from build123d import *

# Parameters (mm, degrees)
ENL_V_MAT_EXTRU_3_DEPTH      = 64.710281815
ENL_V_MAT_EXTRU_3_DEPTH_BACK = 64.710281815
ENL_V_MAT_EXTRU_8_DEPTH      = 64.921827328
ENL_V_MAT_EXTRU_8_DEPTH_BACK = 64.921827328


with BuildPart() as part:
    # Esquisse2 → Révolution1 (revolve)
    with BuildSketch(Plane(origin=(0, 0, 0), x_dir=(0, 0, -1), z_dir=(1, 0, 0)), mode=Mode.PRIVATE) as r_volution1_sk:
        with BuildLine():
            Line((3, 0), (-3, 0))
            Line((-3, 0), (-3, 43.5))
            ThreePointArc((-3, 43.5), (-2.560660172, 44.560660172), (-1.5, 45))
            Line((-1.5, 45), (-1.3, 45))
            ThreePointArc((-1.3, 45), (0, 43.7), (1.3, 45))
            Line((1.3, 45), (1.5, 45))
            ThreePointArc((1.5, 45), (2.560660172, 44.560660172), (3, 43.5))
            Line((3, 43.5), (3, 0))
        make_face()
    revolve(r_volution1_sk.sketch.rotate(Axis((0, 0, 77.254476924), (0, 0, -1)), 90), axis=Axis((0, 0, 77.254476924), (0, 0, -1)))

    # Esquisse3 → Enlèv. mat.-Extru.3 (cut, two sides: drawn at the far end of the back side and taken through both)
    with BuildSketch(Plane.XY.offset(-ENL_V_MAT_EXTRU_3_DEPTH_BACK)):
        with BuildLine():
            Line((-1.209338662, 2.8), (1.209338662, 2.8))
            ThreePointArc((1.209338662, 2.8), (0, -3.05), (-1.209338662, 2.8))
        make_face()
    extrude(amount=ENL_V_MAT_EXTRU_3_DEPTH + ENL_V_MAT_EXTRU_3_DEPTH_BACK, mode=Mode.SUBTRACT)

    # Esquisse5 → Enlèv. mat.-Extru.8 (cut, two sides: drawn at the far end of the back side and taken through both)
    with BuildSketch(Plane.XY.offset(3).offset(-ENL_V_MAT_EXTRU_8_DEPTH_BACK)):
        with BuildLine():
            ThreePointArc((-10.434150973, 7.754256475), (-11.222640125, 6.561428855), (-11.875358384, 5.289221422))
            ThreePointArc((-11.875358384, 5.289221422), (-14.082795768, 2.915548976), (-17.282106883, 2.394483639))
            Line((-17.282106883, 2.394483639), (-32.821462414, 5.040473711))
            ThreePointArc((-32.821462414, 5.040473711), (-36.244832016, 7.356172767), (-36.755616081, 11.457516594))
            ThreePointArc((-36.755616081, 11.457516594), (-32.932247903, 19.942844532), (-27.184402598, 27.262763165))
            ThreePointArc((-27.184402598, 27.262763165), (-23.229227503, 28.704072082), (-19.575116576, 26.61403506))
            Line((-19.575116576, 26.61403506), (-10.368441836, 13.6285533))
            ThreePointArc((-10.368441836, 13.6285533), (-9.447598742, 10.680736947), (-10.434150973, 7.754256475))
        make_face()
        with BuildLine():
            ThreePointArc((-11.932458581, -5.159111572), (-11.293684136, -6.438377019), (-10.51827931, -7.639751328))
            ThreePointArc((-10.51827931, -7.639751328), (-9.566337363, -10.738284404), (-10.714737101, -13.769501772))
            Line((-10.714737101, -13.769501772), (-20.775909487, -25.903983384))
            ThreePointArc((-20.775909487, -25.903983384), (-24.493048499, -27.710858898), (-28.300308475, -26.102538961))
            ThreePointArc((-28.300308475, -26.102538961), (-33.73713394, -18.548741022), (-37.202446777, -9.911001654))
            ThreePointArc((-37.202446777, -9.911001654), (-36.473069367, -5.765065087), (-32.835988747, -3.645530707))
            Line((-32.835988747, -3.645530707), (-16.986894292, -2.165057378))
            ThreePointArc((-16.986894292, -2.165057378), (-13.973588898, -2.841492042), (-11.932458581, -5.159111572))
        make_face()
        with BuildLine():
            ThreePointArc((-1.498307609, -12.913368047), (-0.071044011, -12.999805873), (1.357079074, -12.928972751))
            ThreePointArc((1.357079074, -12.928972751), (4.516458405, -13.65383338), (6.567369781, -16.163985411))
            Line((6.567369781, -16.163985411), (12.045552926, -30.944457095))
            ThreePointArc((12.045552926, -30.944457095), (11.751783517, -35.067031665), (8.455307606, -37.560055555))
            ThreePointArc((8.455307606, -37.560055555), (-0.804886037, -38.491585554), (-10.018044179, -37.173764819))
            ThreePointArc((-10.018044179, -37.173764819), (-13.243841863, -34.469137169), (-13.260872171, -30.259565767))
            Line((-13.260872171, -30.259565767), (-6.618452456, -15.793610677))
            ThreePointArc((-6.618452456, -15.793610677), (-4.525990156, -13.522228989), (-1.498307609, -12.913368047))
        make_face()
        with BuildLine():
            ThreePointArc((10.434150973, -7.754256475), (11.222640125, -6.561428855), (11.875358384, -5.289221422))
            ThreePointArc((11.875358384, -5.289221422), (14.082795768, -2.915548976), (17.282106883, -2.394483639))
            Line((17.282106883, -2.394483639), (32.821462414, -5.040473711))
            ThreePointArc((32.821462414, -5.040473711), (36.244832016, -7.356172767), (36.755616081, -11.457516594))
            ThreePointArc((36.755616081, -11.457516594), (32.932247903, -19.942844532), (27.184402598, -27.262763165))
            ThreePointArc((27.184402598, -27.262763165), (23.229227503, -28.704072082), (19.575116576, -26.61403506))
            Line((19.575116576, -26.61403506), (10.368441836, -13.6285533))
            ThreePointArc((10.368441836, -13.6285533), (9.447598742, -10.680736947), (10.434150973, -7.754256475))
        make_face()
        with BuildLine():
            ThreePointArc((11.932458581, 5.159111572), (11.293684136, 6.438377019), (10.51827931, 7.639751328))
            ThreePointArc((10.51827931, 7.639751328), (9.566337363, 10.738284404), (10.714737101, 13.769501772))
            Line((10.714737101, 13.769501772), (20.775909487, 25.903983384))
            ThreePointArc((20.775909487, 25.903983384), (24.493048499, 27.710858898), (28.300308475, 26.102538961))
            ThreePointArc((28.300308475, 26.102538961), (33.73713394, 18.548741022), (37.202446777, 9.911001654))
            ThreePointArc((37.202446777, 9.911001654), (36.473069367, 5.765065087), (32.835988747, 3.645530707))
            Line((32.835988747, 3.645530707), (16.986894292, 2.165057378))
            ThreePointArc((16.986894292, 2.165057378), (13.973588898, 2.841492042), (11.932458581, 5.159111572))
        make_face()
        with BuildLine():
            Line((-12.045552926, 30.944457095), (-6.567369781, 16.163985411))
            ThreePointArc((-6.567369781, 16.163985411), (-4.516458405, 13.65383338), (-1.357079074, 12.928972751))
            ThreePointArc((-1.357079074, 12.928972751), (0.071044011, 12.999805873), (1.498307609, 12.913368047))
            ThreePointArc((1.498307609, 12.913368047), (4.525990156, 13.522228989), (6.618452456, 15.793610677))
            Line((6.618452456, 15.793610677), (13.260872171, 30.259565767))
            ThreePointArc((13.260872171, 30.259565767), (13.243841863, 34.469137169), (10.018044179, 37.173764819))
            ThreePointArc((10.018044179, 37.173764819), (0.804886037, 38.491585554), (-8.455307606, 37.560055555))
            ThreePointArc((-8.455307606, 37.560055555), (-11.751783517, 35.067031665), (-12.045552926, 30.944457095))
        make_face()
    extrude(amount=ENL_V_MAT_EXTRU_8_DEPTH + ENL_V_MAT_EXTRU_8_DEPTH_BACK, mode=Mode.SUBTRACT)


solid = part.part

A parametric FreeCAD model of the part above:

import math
import FreeCAD as App
import Part
import Sketcher

doc = App.newDocument("Part")
body = doc.addObject("PartDesign::Body", "Body")

# Sketch on YZ plane
sketch1 = body.newObject("Sketcher::SketchObject", "Sketch")
sketch1.AttachmentSupport = (doc.getObject("YZ_Plane"), [""])
sketch1.MapMode = "FlatFace"
sketch1.addGeometry(Part.LineSegment(App.Vector(0, 3, 0), App.Vector(0, -3, 0)), False)
sketch1.addGeometry(Part.LineSegment(App.Vector(0, -3, 0), App.Vector(43.5, -3, 0)), False)
sketch1.addGeometry(Part.ArcOfCircle(Part.Circle(App.Vector(43.5, -1.5, 0), App.Vector(0, 0, 1), 1.5), math.radians(-90), math.radians(0)), False)
sketch1.addGeometry(Part.LineSegment(App.Vector(45, -1.5, 0), App.Vector(45, -1.3, 0)), False)
sketch1.addGeometry(Part.ArcOfCircle(Part.Circle(App.Vector(45, 0, 0), App.Vector(0, 0, 1), 1.3), math.radians(90), math.radians(270)), False)
sketch1.addGeometry(Part.LineSegment(App.Vector(45, 1.3, 0), App.Vector(45, 1.5, 0)), False)
sketch1.addGeometry(Part.ArcOfCircle(Part.Circle(App.Vector(43.5, 1.5, 0), App.Vector(0, 0, 1), 1.5), math.radians(0), math.radians(90)), False)
sketch1.addGeometry(Part.LineSegment(App.Vector(43.5, 3, 0), App.Vector(0, 3, 0)), False)
sketch1.addConstraint(Sketcher.Constraint("Coincident", 0, 2, 1, 1))
sketch1.addConstraint(Sketcher.Constraint("Tangent", 1, 2, 2, 1))
sketch1.addConstraint(Sketcher.Constraint("Tangent", 2, 2, 3, 1))
sketch1.addConstraint(Sketcher.Constraint("Coincident", 3, 2, 4, 2))
sketch1.addConstraint(Sketcher.Constraint("Coincident", 4, 1, 5, 1))
sketch1.addConstraint(Sketcher.Constraint("Tangent", 5, 2, 6, 1))
sketch1.addConstraint(Sketcher.Constraint("Tangent", 6, 2, 7, 1))
sketch1.addConstraint(Sketcher.Constraint("Coincident", 7, 2, 0, 1))
sketch1.addConstraint(Sketcher.Constraint("Vertical", 0))
sketch1.addConstraint(Sketcher.Constraint("Horizontal", 1))
sketch1.addConstraint(Sketcher.Constraint("Vertical", 3))
sketch1.addConstraint(Sketcher.Constraint("Vertical", 5))
sketch1.addConstraint(Sketcher.Constraint("Horizontal", 7))
sketch1.addConstraint(Sketcher.Constraint("Equal", 2, 6))
sketch1.addConstraint(Sketcher.Constraint("Symmetric", 0, 2, 7, 2, -1, 1))
sketch1.addConstraint(Sketcher.Constraint("Symmetric", 3, 2, 4, 1, -1))
sketch1.addConstraint(Sketcher.Constraint("Vertical", 4, 3, 2, 2))
sketch1.addConstraint(Sketcher.Constraint("Radius", 2, 1.5))
sketch1.addConstraint(Sketcher.Constraint("Radius", 4, 1.3))
sketch1.addConstraint(Sketcher.Constraint("DistanceY", 0, 2, 0, 1, 6.0))
sketch1.addConstraint(Sketcher.Constraint("DistanceX", 1, 1, 1, 2, 43.5))
revolution = body.newObject("PartDesign::Revolution", "Revolution")
revolution.Profile = sketch1
revolution.ReferenceAxis = (sketch1, ["V_Axis"])
revolution.Angle = 360

# Sketch on XY plane
sketch2 = body.newObject("Sketcher::SketchObject", "Sketch001")
sketch2.AttachmentSupport = (doc.getObject("XY_Plane"), [""])
sketch2.MapMode = "FlatFace"
sketch2.addGeometry(Part.LineSegment(App.Vector(1.2, 2.8, 0), App.Vector(-1.2, 2.8, 0)), False)
sketch2.addGeometry(Part.ArcOfCircle(Part.Circle(App.Vector(0, 0, 0), App.Vector(0, 0, 1), 3), math.radians(113), math.radians(427)), False)
sketch2.addConstraint(Sketcher.Constraint("Coincident", 0, 1, 1, 2))
sketch2.addConstraint(Sketcher.Constraint("Coincident", 1, 1, 0, 2))
sketch2.addConstraint(Sketcher.Constraint("Horizontal", 0))
sketch2.addConstraint(Sketcher.Constraint("Coincident", 1, 3, -1, 1))
sketch2.addConstraint(Sketcher.Constraint("Radius", 1, 3.05))
sketch2.addConstraint(Sketcher.Constraint("DistanceY", -1, 1, 0, 1, 2.8))
pocket1 = body.newObject("PartDesign::Pocket", "Pocket")
pocket1.Profile = sketch2
pocket1.Type = "ThroughAll"
pocket1.Midplane = True

# Sketch on XY plane
sketch3 = body.newObject("Sketcher::SketchObject", "Sketch002")
sketch3.AttachmentSupport = (doc.getObject("XY_Plane"), [""])
sketch3.MapMode = "FlatFace"
sketch3.AttachmentOffset = App.Placement(App.Vector(0, 0, 3), App.Rotation())
sketch3.addGeometry(Part.ArcOfCircle(Part.Circle(App.Vector(0, 0, 0), App.Vector(0, 0, 1), 13), math.radians(143.38), math.radians(155.99)), False)
sketch3.addGeometry(Part.ArcOfCircle(Part.Circle(App.Vector(-14.4, 10.7, 0), App.Vector(0, 0, 1), 5), math.radians(-37), math.radians(35)), False)
sketch3.addGeometry(Part.LineSegment(App.Vector(-10.4, 13.6, 0), App.Vector(-19.6, 26.6, 0)), False)
sketch3.addGeometry(Part.ArcOfCircle(Part.Circle(App.Vector(-23.7, 23.7, 0), App.Vector(0, 0, 1), 5), math.radians(35), math.radians(135)), False)
sketch3.addGeometry(Part.ArcOfCircle(Part.Circle(App.Vector(0, 0, 0), App.Vector(0, 0, 1), 38.5), math.radians(135), math.radians(163)), False)
sketch3.addGeometry(Part.ArcOfCircle(Part.Circle(App.Vector(-32, 10, 0), App.Vector(0, 0, 1), 5), math.radians(163), math.radians(260)), False)
sketch3.addGeometry(Part.LineSegment(App.Vector(-32.8, 5, 0), App.Vector(-17.3, 2.4, 0)), False)
sketch3.addGeometry(Part.ArcOfCircle(Part.Circle(App.Vector(-16.4, 7.3, 0), App.Vector(0, 0, 1), 5), math.radians(-100), math.radians(-24)), False)
sketch3.addGeometry(Part.ArcOfCircle(Part.Circle(App.Vector(0, 0, 0), App.Vector(0, 0, 1), 13), math.radians(-156.62), math.radians(-144.01)), False)
sketch3.addGeometry(Part.ArcOfCircle(Part.Circle(App.Vector(-16.5, -7.1, 0), App.Vector(0, 0, 1), 5), math.radians(23), math.radians(95)), False)
sketch3.addGeometry(Part.LineSegment(App.Vector(-17, -2.2, 0), App.Vector(-32.8, -3.6, 0)), False)
sketch3.addGeometry(Part.ArcOfCircle(Part.Circle(App.Vector(-32.4, -8.6, 0), App.Vector(0, 0, 1), 5), math.radians(95), math.radians(195)), False)
sketch3.addGeometry(Part.ArcOfCircle(Part.Circle(App.Vector(0, 0, 0), App.Vector(0, 0, 1), 38.5), math.radians(-165), math.radians(-137)), False)
sketch3.addGeometry(Part.ArcOfCircle(Part.Circle(App.Vector(-24.6, -22.7, 0), App.Vector(0, 0, 1), 5), math.radians(-137), math.radians(-40)), False)
sketch3.addGeometry(Part.LineSegment(App.Vector(-20.8, -25.9, 0), App.Vector(-10.7, -13.8, 0)), False)
sketch3.addGeometry(Part.ArcOfCircle(Part.Circle(App.Vector(-14.6, -10.6, 0), App.Vector(0, 0, 1), 5), math.radians(-40), math.radians(36)), False)
sketch3.addGeometry(Part.ArcOfCircle(Part.Circle(App.Vector(0, 0, 0), App.Vector(0, 0, 1), 13), math.radians(-96.62), math.radians(-84.01)), False)
sketch3.addGeometry(Part.ArcOfCircle(Part.Circle(App.Vector(-2.1, -17.9, 0), App.Vector(0, 0, 1), 5), math.radians(83), math.radians(155)), False)
sketch3.addGeometry(Part.LineSegment(App.Vector(-6.6, -15.8, 0), App.Vector(-13.3, -30.3, 0)), False)
sketch3.addGeometry(Part.ArcOfCircle(Part.Circle(App.Vector(-8.7, -32.3, 0), App.Vector(0, 0, 1), 5), math.radians(155), math.radians(255)), False)
sketch3.addGeometry(Part.ArcOfCircle(Part.Circle(App.Vector(0, 0, 0), App.Vector(0, 0, 1), 38.5), math.radians(-105), math.radians(-77)), False)
sketch3.addGeometry(Part.ArcOfCircle(Part.Circle(App.Vector(7.4, -32.7, 0), App.Vector(0, 0, 1), 5), math.radians(-77), math.radians(20)), False)
sketch3.addGeometry(Part.LineSegment(App.Vector(12, -30.9, 0), App.Vector(6.6, -16.2, 0)), False)
sketch3.addGeometry(Part.ArcOfCircle(Part.Circle(App.Vector(1.9, -17.9, 0), App.Vector(0, 0, 1), 5), math.radians(20), math.radians(96)), False)
sketch3.addGeometry(Part.ArcOfCircle(Part.Circle(App.Vector(0, 0, 0), App.Vector(0, 0, 1), 13), math.radians(-36.62), math.radians(-24.01)), False)
sketch3.addGeometry(Part.ArcOfCircle(Part.Circle(App.Vector(14.4, -10.7, 0), App.Vector(0, 0, 1), 5), math.radians(143), math.radians(215)), False)
sketch3.addGeometry(Part.LineSegment(App.Vector(10.4, -13.6, 0), App.Vector(19.6, -26.6, 0)), False)
sketch3.addGeometry(Part.ArcOfCircle(Part.Circle(App.Vector(23.7, -23.7, 0), App.Vector(0, 0, 1), 5), math.radians(-145), math.radians(-45)), False)
sketch3.addGeometry(Part.ArcOfCircle(Part.Circle(App.Vector(0, 0, 0), App.Vector(0, 0, 1), 38.5), math.radians(-45), math.radians(-17)), False)
sketch3.addGeometry(Part.ArcOfCircle(Part.Circle(App.Vector(32, -10, 0), App.Vector(0, 0, 1), 5), math.radians(-17), math.radians(80)), False)
sketch3.addGeometry(Part.LineSegment(App.Vector(32.8, -5, 0), App.Vector(17.3, -2.4, 0)), False)
sketch3.addGeometry(Part.ArcOfCircle(Part.Circle(App.Vector(16.4, -7.3, 0), App.Vector(0, 0, 1), 5), math.radians(80), math.radians(156)), False)
sketch3.addGeometry(Part.ArcOfCircle(Part.Circle(App.Vector(0, 0, 0), App.Vector(0, 0, 1), 13), math.radians(23.38), math.radians(35.99)), False)
sketch3.addGeometry(Part.ArcOfCircle(Part.Circle(App.Vector(16.5, 7.1, 0), App.Vector(0, 0, 1), 5), math.radians(-157), math.radians(-85)), False)
sketch3.addGeometry(Part.LineSegment(App.Vector(17, 2.2, 0), App.Vector(32.8, 3.6, 0)), False)
sketch3.addGeometry(Part.ArcOfCircle(Part.Circle(App.Vector(32.4, 8.6, 0), App.Vector(0, 0, 1), 5), math.radians(-85), math.radians(15)), False)
sketch3.addGeometry(Part.ArcOfCircle(Part.Circle(App.Vector(0, 0, 0), App.Vector(0, 0, 1), 38.5), math.radians(15), math.radians(43)), False)
sketch3.addGeometry(Part.ArcOfCircle(Part.Circle(App.Vector(24.6, 22.7, 0), App.Vector(0, 0, 1), 5), math.radians(43), math.radians(140)), False)
sketch3.addGeometry(Part.LineSegment(App.Vector(20.8, 25.9, 0), App.Vector(10.7, 13.8, 0)), False)
sketch3.addGeometry(Part.ArcOfCircle(Part.Circle(App.Vector(14.6, 10.6, 0), App.Vector(0, 0, 1), 5), math.radians(140), math.radians(216)), False)
sketch3.addGeometry(Part.LineSegment(App.Vector(-12, 30.9, 0), App.Vector(-6.6, 16.2, 0)), False)
sketch3.addGeometry(Part.ArcOfCircle(Part.Circle(App.Vector(-1.9, 17.9, 0), App.Vector(0, 0, 1), 5), math.radians(-160), math.radians(-84)), False)
sketch3.addGeometry(Part.ArcOfCircle(Part.Circle(App.Vector(0, 0, 0), App.Vector(0, 0, 1), 13), math.radians(83.38), math.radians(95.99)), False)
sketch3.addGeometry(Part.ArcOfCircle(Part.Circle(App.Vector(2.1, 17.9, 0), App.Vector(0, 0, 1), 5), math.radians(-97), math.radians(-25)), False)
sketch3.addGeometry(Part.LineSegment(App.Vector(6.6, 15.8, 0), App.Vector(13.3, 30.3, 0)), False)
sketch3.addGeometry(Part.ArcOfCircle(Part.Circle(App.Vector(8.7, 32.3, 0), App.Vector(0, 0, 1), 5), math.radians(-25), math.radians(75)), False)
sketch3.addGeometry(Part.ArcOfCircle(Part.Circle(App.Vector(0, 0, 0), App.Vector(0, 0, 1), 38.5), math.radians(75), math.radians(103)), False)
sketch3.addGeometry(Part.ArcOfCircle(Part.Circle(App.Vector(-7.4, 32.7, 0), App.Vector(0, 0, 1), 5), math.radians(103), math.radians(200)), False)
sketch3.addConstraint(Sketcher.Constraint("Tangent", 0, 1, 1, 1))
sketch3.addConstraint(Sketcher.Constraint("Tangent", 1, 2, 2, 1))
sketch3.addConstraint(Sketcher.Constraint("Tangent", 2, 2, 3, 1))
sketch3.addConstraint(Sketcher.Constraint("Tangent", 3, 2, 4, 1))
sketch3.addConstraint(Sketcher.Constraint("Tangent", 4, 2, 5, 1))
sketch3.addConstraint(Sketcher.Constraint("Tangent", 5, 2, 6, 1))
sketch3.addConstraint(Sketcher.Constraint("Tangent", 6, 2, 7, 1))
sketch3.addConstraint(Sketcher.Constraint("Tangent", 7, 2, 0, 2))
sketch3.addConstraint(Sketcher.Constraint("Tangent", 8, 1, 9, 1))
sketch3.addConstraint(Sketcher.Constraint("Tangent", 9, 2, 10, 1))
sketch3.addConstraint(Sketcher.Constraint("Tangent", 10, 2, 11, 1))
sketch3.addConstraint(Sketcher.Constraint("Tangent", 11, 2, 12, 1))
sketch3.addConstraint(Sketcher.Constraint("Tangent", 12, 2, 13, 1))
sketch3.addConstraint(Sketcher.Constraint("Tangent", 13, 2, 14, 1))
sketch3.addConstraint(Sketcher.Constraint("Tangent", 14, 2, 15, 1))
sketch3.addConstraint(Sketcher.Constraint("Tangent", 15, 2, 8, 2))
sketch3.addConstraint(Sketcher.Constraint("Tangent", 16, 1, 17, 1))
sketch3.addConstraint(Sketcher.Constraint("Tangent", 17, 2, 18, 1))
sketch3.addConstraint(Sketcher.Constraint("Tangent", 18, 2, 19, 1))
sketch3.addConstraint(Sketcher.Constraint("Tangent", 19, 2, 20, 1))
sketch3.addConstraint(Sketcher.Constraint("Tangent", 20, 2, 21, 1))
sketch3.addConstraint(Sketcher.Constraint("Tangent", 21, 2, 22, 1))
sketch3.addConstraint(Sketcher.Constraint("Tangent", 22, 2, 23, 1))
sketch3.addConstraint(Sketcher.Constraint("Tangent", 23, 2, 16, 2))
sketch3.addConstraint(Sketcher.Constraint("Tangent", 24, 1, 25, 1))
sketch3.addConstraint(Sketcher.Constraint("Tangent", 25, 2, 26, 1))
sketch3.addConstraint(Sketcher.Constraint("Tangent", 26, 2, 27, 1))
sketch3.addConstraint(Sketcher.Constraint("Tangent", 27, 2, 28, 1))
sketch3.addConstraint(Sketcher.Constraint("Tangent", 28, 2, 29, 1))
sketch3.addConstraint(Sketcher.Constraint("Tangent", 29, 2, 30, 1))
sketch3.addConstraint(Sketcher.Constraint("Tangent", 30, 2, 31, 1))
sketch3.addConstraint(Sketcher.Constraint("Tangent", 31, 2, 24, 2))
sketch3.addConstraint(Sketcher.Constraint("Tangent", 32, 1, 33, 1))
sketch3.addConstraint(Sketcher.Constraint("Tangent", 33, 2, 34, 1))
sketch3.addConstraint(Sketcher.Constraint("Tangent", 34, 2, 35, 1))
sketch3.addConstraint(Sketcher.Constraint("Tangent", 35, 2, 36, 1))
sketch3.addConstraint(Sketcher.Constraint("Tangent", 36, 2, 37, 1))
sketch3.addConstraint(Sketcher.Constraint("Tangent", 37, 2, 38, 1))
sketch3.addConstraint(Sketcher.Constraint("Tangent", 38, 2, 39, 1))
sketch3.addConstraint(Sketcher.Constraint("Tangent", 39, 2, 32, 2))
sketch3.addConstraint(Sketcher.Constraint("Tangent", 40, 2, 41, 1))
sketch3.addConstraint(Sketcher.Constraint("Tangent", 41, 2, 42, 2))
sketch3.addConstraint(Sketcher.Constraint("Tangent", 42, 1, 43, 1))
sketch3.addConstraint(Sketcher.Constraint("Tangent", 43, 2, 44, 1))
sketch3.addConstraint(Sketcher.Constraint("Tangent", 44, 2, 45, 1))
sketch3.addConstraint(Sketcher.Constraint("Tangent", 45, 2, 46, 1))
sketch3.addConstraint(Sketcher.Constraint("Tangent", 46, 2, 47, 1))
sketch3.addConstraint(Sketcher.Constraint("Tangent", 47, 2, 40, 1))
sketch3.addConstraint(Sketcher.Constraint("Coincident", 0, 3, -1, 1))
sketch3.addConstraint(Sketcher.Constraint("Coincident", 4, 3, -1, 1))
sketch3.addConstraint(Sketcher.Constraint("Coincident", 8, 3, -1, 1))
sketch3.addConstraint(Sketcher.Constraint("Coincident", 12, 3, -1, 1))
sketch3.addConstraint(Sketcher.Constraint("Coincident", 16, 3, -1, 1))
sketch3.addConstraint(Sketcher.Constraint("Coincident", 20, 3, -1, 1))
sketch3.addConstraint(Sketcher.Constraint("Coincident", 24, 3, -1, 1))
sketch3.addConstraint(Sketcher.Constraint("Coincident", 28, 3, -1, 1))
sketch3.addConstraint(Sketcher.Constraint("Coincident", 32, 3, -1, 1))
sketch3.addConstraint(Sketcher.Constraint("Coincident", 36, 3, -1, 1))
sketch3.addConstraint(Sketcher.Constraint("Coincident", 42, 3, -1, 1))
sketch3.addConstraint(Sketcher.Constraint("Coincident", 46, 3, -1, 1))
sketch3.addConstraint(Sketcher.Constraint("Equal", 1, 3))
sketch3.addConstraint(Sketcher.Constraint("Equal", 3, 5))
sketch3.addConstraint(Sketcher.Constraint("Equal", 5, 7))
sketch3.addConstraint(Sketcher.Constraint("Equal", 0, 8))
sketch3.addConstraint(Sketcher.Constraint("Equal", 7, 9))
sketch3.addConstraint(Sketcher.Constraint("Equal", 9, 11))
sketch3.addConstraint(Sketcher.Constraint("Equal", 4, 12))
sketch3.addConstraint(Sketcher.Constraint("Equal", 11, 13))
sketch3.addConstraint(Sketcher.Constraint("Equal", 13, 15))
sketch3.addConstraint(Sketcher.Constraint("Equal", 8, 16))
sketch3.addConstraint(Sketcher.Constraint("Equal", 15, 17))
sketch3.addConstraint(Sketcher.Constraint("Equal", 17, 19))
sketch3.addConstraint(Sketcher.Constraint("Equal", 12, 20))
sketch3.addConstraint(Sketcher.Constraint("Equal", 19, 21))
sketch3.addConstraint(Sketcher.Constraint("Equal", 21, 23))
sketch3.addConstraint(Sketcher.Constraint("Equal", 16, 24))
sketch3.addConstraint(Sketcher.Constraint("Equal", 23, 25))
sketch3.addConstraint(Sketcher.Constraint("Equal", 25, 27))
sketch3.addConstraint(Sketcher.Constraint("Equal", 20, 28))
sketch3.addConstraint(Sketcher.Constraint("Equal", 27, 29))
sketch3.addConstraint(Sketcher.Constraint("Equal", 29, 31))
sketch3.addConstraint(Sketcher.Constraint("Equal", 24, 32))
sketch3.addConstraint(Sketcher.Constraint("Equal", 31, 33))
sketch3.addConstraint(Sketcher.Constraint("Equal", 33, 35))
sketch3.addConstraint(Sketcher.Constraint("Equal", 28, 36))
sketch3.addConstraint(Sketcher.Constraint("Equal", 35, 37))
sketch3.addConstraint(Sketcher.Constraint("Equal", 37, 39))
sketch3.addConstraint(Sketcher.Constraint("Equal", 39, 41))
sketch3.addConstraint(Sketcher.Constraint("Equal", 32, 42))
sketch3.addConstraint(Sketcher.Constraint("Equal", 41, 43))
sketch3.addConstraint(Sketcher.Constraint("Equal", 43, 45))
sketch3.addConstraint(Sketcher.Constraint("Equal", 36, 46))
sketch3.addConstraint(Sketcher.Constraint("Equal", 45, 47))
sketch3.addConstraint(Sketcher.Constraint("Symmetric", 1, 2, 25, 2, -1, 1))
sketch3.addConstraint(Sketcher.Constraint("Symmetric", 5, 2, 29, 2, -1, 1))
sketch3.addConstraint(Sketcher.Constraint("Symmetric", 9, 2, 33, 2, -1, 1))
sketch3.addConstraint(Sketcher.Constraint("Symmetric", 13, 2, 37, 2, -1, 1))
sketch3.addConstraint(Sketcher.Constraint("Symmetric", 22, 2, 40, 2, -1, 1))
sketch3.addConstraint(Sketcher.Constraint("Symmetric", 17, 2, 43, 2, -1, 1))
sketch3.addConstraint(Sketcher.Constraint("Equal", 2, 10))
sketch3.addConstraint(Sketcher.Constraint("Equal", 6, 14))
sketch3.addConstraint(Sketcher.Constraint("Equal", 10, 18))
sketch3.addConstraint(Sketcher.Constraint("Equal", 14, 22))
sketch3.addConstraint(Sketcher.Constraint("Radius", 0, 13.0))
sketch3.addConstraint(Sketcher.Constraint("Radius", 1, 5.0))
sketch3.addConstraint(Sketcher.Constraint("Radius", 4, 38.5))
sketch3.addConstraint(Sketcher.Constraint("DistanceX", 19, 3, -1, 1, 8.716999))
sketch3.addConstraint(Sketcher.Constraint("DistanceY", 11, 2, -1, 1, 9.911002))
sketch3.addConstraint(Sketcher.Constraint("DistanceY", 13, 3, -1, 1, 22.712599))
sketch3.addConstraint(Sketcher.Constraint("DistanceY", 14, 2, -1, 1, 13.769502))
sketch3.addConstraint(Sketcher.Constraint("Distance", 2, 15.91809))
sketch3.addConstraint(Sketcher.Constraint("DistanceX", 3, 3, -1, 1, 23.653961))
sketch3.addConstraint(Sketcher.Constraint("DistanceX", 5, 3, -1, 1, 31.982159))
sketch3.addConstraint(Sketcher.Constraint("DistanceX", -1, 1, 22, 2, 6.56737))
pocket2 = body.newObject("PartDesign::Pocket", "Pocket001")
pocket2.Profile = sketch3
pocket2.Type = "ThroughAll"
pocket2.Midplane = True

doc.recompute()
